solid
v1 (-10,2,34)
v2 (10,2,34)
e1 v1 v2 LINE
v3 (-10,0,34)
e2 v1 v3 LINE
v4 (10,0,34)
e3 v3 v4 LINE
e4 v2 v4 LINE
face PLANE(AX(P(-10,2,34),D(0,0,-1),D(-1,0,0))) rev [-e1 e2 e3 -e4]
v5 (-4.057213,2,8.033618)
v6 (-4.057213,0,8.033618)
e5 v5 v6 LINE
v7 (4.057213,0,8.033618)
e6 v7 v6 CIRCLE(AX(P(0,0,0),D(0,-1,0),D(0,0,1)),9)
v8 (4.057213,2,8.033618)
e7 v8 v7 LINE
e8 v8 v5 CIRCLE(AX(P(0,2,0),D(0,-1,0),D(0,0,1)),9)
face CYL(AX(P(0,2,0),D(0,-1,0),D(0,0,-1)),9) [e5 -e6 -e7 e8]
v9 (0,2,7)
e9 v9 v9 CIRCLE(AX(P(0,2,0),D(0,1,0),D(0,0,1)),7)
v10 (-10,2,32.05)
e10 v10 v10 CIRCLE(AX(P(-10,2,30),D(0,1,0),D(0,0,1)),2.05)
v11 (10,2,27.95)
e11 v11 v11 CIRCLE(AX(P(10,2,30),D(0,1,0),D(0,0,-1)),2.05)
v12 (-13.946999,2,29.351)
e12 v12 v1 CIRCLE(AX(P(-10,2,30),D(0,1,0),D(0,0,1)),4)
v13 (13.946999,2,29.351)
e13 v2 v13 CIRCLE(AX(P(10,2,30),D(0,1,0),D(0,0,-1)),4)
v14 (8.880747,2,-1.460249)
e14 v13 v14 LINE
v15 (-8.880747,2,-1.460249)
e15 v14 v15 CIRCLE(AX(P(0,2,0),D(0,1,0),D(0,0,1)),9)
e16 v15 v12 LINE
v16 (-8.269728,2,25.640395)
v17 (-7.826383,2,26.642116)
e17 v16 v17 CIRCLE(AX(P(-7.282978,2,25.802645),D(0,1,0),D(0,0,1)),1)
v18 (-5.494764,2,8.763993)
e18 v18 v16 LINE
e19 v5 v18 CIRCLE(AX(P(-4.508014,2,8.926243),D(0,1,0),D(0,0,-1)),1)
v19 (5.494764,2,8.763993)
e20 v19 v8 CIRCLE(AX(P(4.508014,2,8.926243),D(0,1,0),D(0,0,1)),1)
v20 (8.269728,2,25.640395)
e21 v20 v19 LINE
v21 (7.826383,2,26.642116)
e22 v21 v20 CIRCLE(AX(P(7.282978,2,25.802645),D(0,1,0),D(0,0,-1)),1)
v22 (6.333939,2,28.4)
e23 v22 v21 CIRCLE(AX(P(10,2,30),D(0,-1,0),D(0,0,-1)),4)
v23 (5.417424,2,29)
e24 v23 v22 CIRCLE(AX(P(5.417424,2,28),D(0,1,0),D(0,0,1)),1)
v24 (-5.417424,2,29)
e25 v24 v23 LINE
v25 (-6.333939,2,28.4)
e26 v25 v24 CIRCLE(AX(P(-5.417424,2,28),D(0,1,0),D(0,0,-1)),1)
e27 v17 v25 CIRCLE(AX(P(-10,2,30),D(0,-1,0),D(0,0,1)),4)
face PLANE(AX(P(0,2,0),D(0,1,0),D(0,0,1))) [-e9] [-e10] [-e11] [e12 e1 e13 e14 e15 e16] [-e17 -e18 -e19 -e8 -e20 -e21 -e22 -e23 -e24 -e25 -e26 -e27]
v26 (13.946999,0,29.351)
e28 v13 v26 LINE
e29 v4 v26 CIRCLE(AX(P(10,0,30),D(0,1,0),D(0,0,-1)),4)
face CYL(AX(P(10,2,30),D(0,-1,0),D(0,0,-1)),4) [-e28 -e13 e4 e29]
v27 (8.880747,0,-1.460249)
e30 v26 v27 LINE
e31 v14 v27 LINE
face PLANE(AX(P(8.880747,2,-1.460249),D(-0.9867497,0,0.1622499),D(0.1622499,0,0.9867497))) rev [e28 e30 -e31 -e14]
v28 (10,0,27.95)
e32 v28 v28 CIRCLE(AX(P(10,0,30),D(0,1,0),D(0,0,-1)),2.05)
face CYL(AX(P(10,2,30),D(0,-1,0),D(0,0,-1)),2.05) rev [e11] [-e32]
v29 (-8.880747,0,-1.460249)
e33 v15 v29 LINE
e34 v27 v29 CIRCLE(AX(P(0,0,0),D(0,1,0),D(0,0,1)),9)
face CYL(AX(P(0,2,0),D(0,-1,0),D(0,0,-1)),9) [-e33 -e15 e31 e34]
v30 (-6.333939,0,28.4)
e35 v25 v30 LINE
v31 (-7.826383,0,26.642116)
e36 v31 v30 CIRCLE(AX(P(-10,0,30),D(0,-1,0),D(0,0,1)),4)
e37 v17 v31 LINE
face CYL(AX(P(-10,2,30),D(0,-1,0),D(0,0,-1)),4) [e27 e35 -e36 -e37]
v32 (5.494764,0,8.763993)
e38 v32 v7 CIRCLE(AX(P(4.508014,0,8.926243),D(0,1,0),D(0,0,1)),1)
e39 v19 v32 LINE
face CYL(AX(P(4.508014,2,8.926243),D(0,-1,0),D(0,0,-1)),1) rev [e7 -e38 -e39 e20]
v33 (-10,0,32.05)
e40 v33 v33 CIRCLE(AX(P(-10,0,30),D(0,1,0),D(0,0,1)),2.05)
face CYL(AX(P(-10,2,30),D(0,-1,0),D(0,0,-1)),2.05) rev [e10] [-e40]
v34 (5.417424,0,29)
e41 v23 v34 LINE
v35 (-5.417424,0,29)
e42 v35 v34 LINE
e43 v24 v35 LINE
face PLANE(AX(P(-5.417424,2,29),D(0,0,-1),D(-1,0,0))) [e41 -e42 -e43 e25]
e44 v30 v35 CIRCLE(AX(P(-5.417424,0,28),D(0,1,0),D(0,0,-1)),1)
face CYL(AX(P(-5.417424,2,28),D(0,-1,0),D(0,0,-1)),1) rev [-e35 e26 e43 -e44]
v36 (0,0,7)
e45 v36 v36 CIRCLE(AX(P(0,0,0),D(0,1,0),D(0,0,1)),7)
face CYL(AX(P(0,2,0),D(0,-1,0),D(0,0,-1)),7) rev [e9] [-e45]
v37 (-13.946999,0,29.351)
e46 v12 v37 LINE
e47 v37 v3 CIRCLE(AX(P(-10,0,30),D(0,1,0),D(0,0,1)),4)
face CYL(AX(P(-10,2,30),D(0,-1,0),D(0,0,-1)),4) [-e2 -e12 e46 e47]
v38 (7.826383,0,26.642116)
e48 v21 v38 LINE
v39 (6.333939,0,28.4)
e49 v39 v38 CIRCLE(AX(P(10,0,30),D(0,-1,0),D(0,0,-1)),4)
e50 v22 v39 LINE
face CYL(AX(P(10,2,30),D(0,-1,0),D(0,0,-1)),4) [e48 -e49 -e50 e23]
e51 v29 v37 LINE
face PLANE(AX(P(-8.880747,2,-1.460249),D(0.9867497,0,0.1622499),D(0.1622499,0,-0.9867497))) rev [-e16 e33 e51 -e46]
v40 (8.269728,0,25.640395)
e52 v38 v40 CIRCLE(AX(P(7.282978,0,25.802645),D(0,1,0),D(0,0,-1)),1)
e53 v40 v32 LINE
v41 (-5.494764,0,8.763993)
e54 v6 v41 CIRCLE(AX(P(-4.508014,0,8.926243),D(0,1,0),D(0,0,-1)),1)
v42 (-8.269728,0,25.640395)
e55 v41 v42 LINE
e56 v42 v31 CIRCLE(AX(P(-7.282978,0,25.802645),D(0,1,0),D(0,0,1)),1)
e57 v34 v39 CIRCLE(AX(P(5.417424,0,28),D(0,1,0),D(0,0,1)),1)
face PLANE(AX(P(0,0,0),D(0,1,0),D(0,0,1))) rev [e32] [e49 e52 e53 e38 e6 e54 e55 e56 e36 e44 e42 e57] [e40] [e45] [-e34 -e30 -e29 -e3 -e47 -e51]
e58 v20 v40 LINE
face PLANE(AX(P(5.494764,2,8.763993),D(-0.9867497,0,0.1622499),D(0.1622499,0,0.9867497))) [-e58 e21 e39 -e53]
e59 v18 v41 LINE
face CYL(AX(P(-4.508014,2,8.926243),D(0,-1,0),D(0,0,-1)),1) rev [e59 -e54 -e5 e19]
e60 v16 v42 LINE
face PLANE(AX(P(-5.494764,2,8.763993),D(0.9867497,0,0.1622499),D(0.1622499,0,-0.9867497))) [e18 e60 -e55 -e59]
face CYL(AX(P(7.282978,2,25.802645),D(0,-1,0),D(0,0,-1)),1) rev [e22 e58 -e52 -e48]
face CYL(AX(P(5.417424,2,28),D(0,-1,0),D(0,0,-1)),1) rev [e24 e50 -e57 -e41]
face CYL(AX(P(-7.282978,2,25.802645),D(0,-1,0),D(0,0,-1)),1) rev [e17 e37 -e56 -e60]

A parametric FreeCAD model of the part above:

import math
import FreeCAD as App
import Part
import Sketcher
Q = App.Units.Quantity

doc = App.newDocument("Part")
body = doc.addObject("PartDesign::Body", "Body")

# Sketch on XZ plane
sketch1 = body.newObject("Sketcher::SketchObject", "Sketch")
sketch1.AttachmentSupport = (doc.getObject("XZ_Plane"), [""])
sketch1.MapMode = "FlatFace"
sketch1.addGeometry(Part.LineSegment(App.Vector(-8.9, -1.5, 0), App.Vector(-13.9, 29.4, 0)), False)
sketch1.addGeometry(Part.ArcOfCircle(Part.Circle(App.Vector(-10, 30, 0), App.Vector(0, 0, 1), 4), math.radians(90), math.radians(189)), False)
sketch1.addGeometry(Part.LineSegment(App.Vector(-10, 34, 0), App.Vector(10, 34, 0)), False)
sketch1.addGeometry(Part.ArcOfCircle(Part.Circle(App.Vector(10, 30, 0), App.Vector(0, 0, 1), 4), math.radians(-9), math.radians(90)), False)
sketch1.addGeometry(Part.LineSegment(App.Vector(13.9, 29.4, 0), App.Vector(8.9, -1.5, 0)), False)
sketch1.addGeometry(Part.ArcOfCircle(Part.Circle(App.Vector(0, 0, 0), App.Vector(0, 0, 1), 9), math.radians(-171), math.radians(-9)), False)
sketch1.addGeometry(Part.Circle(App.Vector(-10, 30, 0), App.Vector(0, 0, 1), 2), False)
sketch1.addGeometry(Part.LineSegment(App.Vector(-8.3, 25.6, 0), App.Vector(-5.5, 8.8, 0)), False)
sketch1.addGeometry(Part.ArcOfCircle(Part.Circle(App.Vector(-4.5, 8.9, 0), App.Vector(0, 0, 1), 1), math.radians(-171), math.radians(-63)), False)
sketch1.addGeometry(Part.ArcOfCircle(Part.Circle(App.Vector(0, 0, 0), App.Vector(0, 0, 1), 9), math.radians(63), math.radians(117)), False)
sketch1.addGeometry(Part.ArcOfCircle(Part.Circle(App.Vector(4.5, 8.9, 0), App.Vector(0, 0, 1), 1), math.radians(-117), math.radians(-9)), False)
sketch1.addGeometry(Part.LineSegment(App.Vector(5.5, 8.8, 0), App.Vector(8.3, 25.6, 0)), False)
sketch1.addGeometry(Part.ArcOfCircle(Part.Circle(App.Vector(7.3, 25.8, 0), App.Vector(0, 0, 1), 1), math.radians(-9), math.radians(57)), False)
sketch1.addGeometry(Part.ArcOfCircle(Part.Circle(App.Vector(10, 30, 0), App.Vector(0, 0, 1), 4), math.radians(-156), math.radians(-123)), False)
sketch1.addGeometry(Part.ArcOfCircle(Part.Circle(App.Vector(5.4, 28, 0), App.Vector(0, 0, 1), 1), math.radians(24), math.radians(90)), False)
sketch1.addGeometry(Part.LineSegment(App.Vector(5.4, 29, 0), App.Vector(-5.4, 29, 0)), False)
sketch1.addGeometry(Part.ArcOfCircle(Part.Circle(App.Vector(-5.4, 28, 0), App.Vector(0, 0, 1), 1), math.radians(90), math.radians(156)), False)
sketch1.addGeometry(Part.ArcOfCircle(Part.Circle(App.Vector(-10, 30, 0), App.Vector(0, 0, 1), 4), math.radians(-57), math.radians(-24)), False)
sketch1.addGeometry(Part.ArcOfCircle(Part.Circle(App.Vector(-7.3, 25.8, 0), App.Vector(0, 0, 1), 1), math.radians(123), math.radians(189)), False)
sketch1.addGeometry(Part.Circle(App.Vector(10, 30, 0), App.Vector(0, 0, 1), 2), False)
sketch1.addGeometry(Part.Circle(App.Vector(0, 0, 0), App.Vector(0, 0, 1), 7), False)
sketch1.addConstraint(Sketcher.Constraint("Tangent", 0, 2, 1, 2))
sketch1.addConstraint(Sketcher.Constraint("Tangent", 1, 1, 2, 1))
sketch1.addConstraint(Sketcher.Constraint("Tangent", 2, 2, 3, 2))
sketch1.addConstraint(Sketcher.Constraint("Tangent", 3, 1, 4, 1))
sketch1.addConstraint(Sketcher.Constraint("Tangent", 4, 2, 5, 2))
sketch1.addConstraint(Sketcher.Constraint("Tangent", 5, 1, 0, 1))
sketch1.addConstraint(Sketcher.Constraint("Tangent", 7, 2, 8, 1))
sketch1.addConstraint(Sketcher.Constraint("Tangent", 8, 2, 9, 2))
sketch1.addConstraint(Sketcher.Constraint("Tangent", 9, 1, 10, 1))
sketch1.addConstraint(Sketcher.Constraint("Tangent", 10, 2, 11, 1))
sketch1.addConstraint(Sketcher.Constraint("Tangent", 11, 2, 12, 1))
sketch1.addConstraint(Sketcher.Constraint("Tangent", 12, 2, 13, 2))
sketch1.addConstraint(Sketcher.Constraint("Tangent", 13, 1, 14, 1))
sketch1.addConstraint(Sketcher.Constraint("Tangent", 14, 2, 15, 1))
sketch1.addConstraint(Sketcher.Constraint("Tangent", 15, 2, 16, 1))
sketch1.addConstraint(Sketcher.Constraint("Tangent", 16, 2, 17, 2))
sketch1.addConstraint(Sketcher.Constraint("Tangent", 17, 1, 18, 1))
sketch1.addConstraint(Sketcher.Constraint("Tangent", 18, 2, 7, 1))
sketch1.addConstraint(Sketcher.Constraint("Horizontal", 2))
sketch1.addConstraint(Sketcher.Constraint("Horizontal", 15))
sketch1.addConstraint(Sketcher.Constraint("Coincident", 5, 3, -1, 1))
sketch1.addConstraint(Sketcher.Constraint("Coincident", 9, 3, -1, 1))
sketch1.addConstraint(Sketcher.Constraint("Coincident", 20, 3, -1, 1))
sketch1.addConstraint(Sketcher.Constraint("Coincident", 6, 3, 1, 3))
sketch1.addConstraint(Sketcher.Constraint("Coincident", 13, 3, 3, 3))
sketch1.addConstraint(Sketcher.Constraint("Coincident", 17, 3, 1, 3))
sketch1.addConstraint(Sketcher.Constraint("Coincident", 19, 3, 3, 3))
sketch1.addConstraint(Sketcher.Constraint("Equal", 1, 3))
sketch1.addConstraint(Sketcher.Constraint("Equal", 5, 9))
sketch1.addConstraint(Sketcher.Constraint("Equal", 8, 10))
sketch1.addConstraint(Sketcher.Constraint("Equal", 10, 12))
sketch1.addConstraint(Sketcher.Constraint("Equal", 3, 13))
sketch1.addConstraint(Sketcher.Constraint("Equal", 12, 14))
sketch1.addConstraint(Sketcher.Constraint("Equal", 14, 16))
sketch1.addConstraint(Sketcher.Constraint("Equal", 13, 17))
sketch1.addConstraint(Sketcher.Constraint("Equal", 16, 18))
sketch1.addConstraint(Sketcher.Constraint("Equal", 6, 19))
sketch1.addConstraint(Sketcher.Constraint("Symmetric", 12, 3, 18, 3, -2))
sketch1.addConstraint(Sketcher.Constraint("Parallel", 0, 7))
sketch1.addConstraint(Sketcher.Constraint("Parallel", 4, 11))
sketch1.addConstraint(Sketcher.Constraint("Diameter", 20, Q("14 mm")))
sketch1.addConstraint(Sketcher.Constraint("Radius", 1, Q("4 mm")))
sketch1.addConstraint(Sketcher.Constraint("Radius", 5, Q("9 mm")))
sketch1.addConstraint(Sketcher.Constraint("Radius", 8, Q("1 mm")))
sketch1.addConstraint(Sketcher.Constraint("Diameter", 6, Q("4.1 mm")))
sketch1.addConstraint(Sketcher.Constraint("DistanceX", 2, 1, 2, 2, Q("20 mm")))
sketch1.addConstraint(Sketcher.Constraint("DistanceY", -1, 1, 1, 3, Q("30 mm")))
sketch1.addConstraint(Sketcher.Constraint("DistanceY", -1, 1, 14, 3, Q("28 mm")))
sketch1.addConstraint(Sketcher.Constraint("DistanceX", 8, 3, 8, 2, Q("0.450801 mm")))
pad1 = body.newObject("PartDesign::Pad", "Pad")
pad1.Profile = sketch1
pad1.Length = 2
pad1.Reversed = True

doc.recompute()
